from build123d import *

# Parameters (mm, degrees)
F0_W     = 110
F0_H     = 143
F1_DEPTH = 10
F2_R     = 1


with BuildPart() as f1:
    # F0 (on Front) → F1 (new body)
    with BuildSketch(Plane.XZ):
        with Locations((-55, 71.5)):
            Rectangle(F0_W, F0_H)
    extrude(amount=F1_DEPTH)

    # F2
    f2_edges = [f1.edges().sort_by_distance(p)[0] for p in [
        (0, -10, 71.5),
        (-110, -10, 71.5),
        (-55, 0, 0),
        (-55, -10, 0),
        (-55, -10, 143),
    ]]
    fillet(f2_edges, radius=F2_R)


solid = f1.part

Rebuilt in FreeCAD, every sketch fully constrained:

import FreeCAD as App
import Part
import Sketcher

V = App.Vector


def edges_at(feature, points):
    """Names of the edges that pass closest to the given points."""
    edges = feature.Shape.Edges
    near = lambda p: min(range(len(edges)), key=lambda i: edges[i].distToShape(Part.Vertex(*p))[0])
    return sorted({f"Edge{near(p) + 1}" for p in points})

doc = App.newDocument("Part")
params = doc.addObject("Spreadsheet::Sheet", "Params")
for row, (alias, value) in enumerate([
    ("sketch1_width", "110 mm"),
    ("sketch1_height", "143 mm"),
    ("pad1_length", "10 mm"),
    ("fillet_radius", "1 mm"),
], start=1):
    params.set(f"A{row}", alias)
    params.set(f"B{row}", "=" + value)
    params.setAlias(f"B{row}", alias)

body = doc.addObject("PartDesign::Body", "Body")

# Sketch on XZ plane
sketch1 = body.newObject("Sketcher::SketchObject", "Sketch")
sketch1.AttachmentSupport = (doc.getObject("XZ_Plane"), [""])
sketch1.MapMode = "FlatFace"
sketch1.addGeometry([
    Part.LineSegment(V(-110, 143, 0), V(-110, 0, 0)),
    Part.LineSegment(V(-110, 0, 0), V(0, 0, 0)),
    Part.LineSegment(V(0, 0, 0), V(0, 143, 0)),
    Part.LineSegment(V(0, 143, 0), V(-110, 143, 0)),
], False)
sketch1.addConstraint([
    Sketcher.Constraint("Coincident", 0, 2, 1, 1),
    Sketcher.Constraint("Coincident", 1, 2, 2, 1),
    Sketcher.Constraint("Coincident", 2, 2, 3, 1),
    Sketcher.Constraint("Coincident", 3, 2, 0, 1),
    Sketcher.Constraint("Vertical", 0),
    Sketcher.Constraint("Horizontal", 1),
    Sketcher.Constraint("Vertical", 2),
    Sketcher.Constraint("Horizontal", 3),
    Sketcher.Constraint("Coincident", 1, 2, -1, 1),
    Sketcher.Constraint("DistanceX", 1, 1, 1, 2, 110.0),
    Sketcher.Constraint("DistanceY", 0, 2, 0, 1, 143.0),
])
sketch1.setExpression("Constraints[9]", "Params.sketch1_width")
sketch1.setExpression("Constraints[10]", "Params.sketch1_height")
pad1 = body.newObject("PartDesign::Pad", "Pad")
pad1.Profile = sketch1
pad1.setExpression("Length", "Params.pad1_length")
doc.recompute()

fillet = body.newObject("PartDesign::Fillet", "Fillet")
fillet.Base = (pad1, edges_at(pad1, [
    (0, -10, 71.5),
    (-110, -10, 71.5),
    (-55, 0, 0),
    (-55, -10, 0),
    (-55, -10, 143),
]))
fillet.setExpression("Radius", "Params.fillet_radius")

doc.recompute()
